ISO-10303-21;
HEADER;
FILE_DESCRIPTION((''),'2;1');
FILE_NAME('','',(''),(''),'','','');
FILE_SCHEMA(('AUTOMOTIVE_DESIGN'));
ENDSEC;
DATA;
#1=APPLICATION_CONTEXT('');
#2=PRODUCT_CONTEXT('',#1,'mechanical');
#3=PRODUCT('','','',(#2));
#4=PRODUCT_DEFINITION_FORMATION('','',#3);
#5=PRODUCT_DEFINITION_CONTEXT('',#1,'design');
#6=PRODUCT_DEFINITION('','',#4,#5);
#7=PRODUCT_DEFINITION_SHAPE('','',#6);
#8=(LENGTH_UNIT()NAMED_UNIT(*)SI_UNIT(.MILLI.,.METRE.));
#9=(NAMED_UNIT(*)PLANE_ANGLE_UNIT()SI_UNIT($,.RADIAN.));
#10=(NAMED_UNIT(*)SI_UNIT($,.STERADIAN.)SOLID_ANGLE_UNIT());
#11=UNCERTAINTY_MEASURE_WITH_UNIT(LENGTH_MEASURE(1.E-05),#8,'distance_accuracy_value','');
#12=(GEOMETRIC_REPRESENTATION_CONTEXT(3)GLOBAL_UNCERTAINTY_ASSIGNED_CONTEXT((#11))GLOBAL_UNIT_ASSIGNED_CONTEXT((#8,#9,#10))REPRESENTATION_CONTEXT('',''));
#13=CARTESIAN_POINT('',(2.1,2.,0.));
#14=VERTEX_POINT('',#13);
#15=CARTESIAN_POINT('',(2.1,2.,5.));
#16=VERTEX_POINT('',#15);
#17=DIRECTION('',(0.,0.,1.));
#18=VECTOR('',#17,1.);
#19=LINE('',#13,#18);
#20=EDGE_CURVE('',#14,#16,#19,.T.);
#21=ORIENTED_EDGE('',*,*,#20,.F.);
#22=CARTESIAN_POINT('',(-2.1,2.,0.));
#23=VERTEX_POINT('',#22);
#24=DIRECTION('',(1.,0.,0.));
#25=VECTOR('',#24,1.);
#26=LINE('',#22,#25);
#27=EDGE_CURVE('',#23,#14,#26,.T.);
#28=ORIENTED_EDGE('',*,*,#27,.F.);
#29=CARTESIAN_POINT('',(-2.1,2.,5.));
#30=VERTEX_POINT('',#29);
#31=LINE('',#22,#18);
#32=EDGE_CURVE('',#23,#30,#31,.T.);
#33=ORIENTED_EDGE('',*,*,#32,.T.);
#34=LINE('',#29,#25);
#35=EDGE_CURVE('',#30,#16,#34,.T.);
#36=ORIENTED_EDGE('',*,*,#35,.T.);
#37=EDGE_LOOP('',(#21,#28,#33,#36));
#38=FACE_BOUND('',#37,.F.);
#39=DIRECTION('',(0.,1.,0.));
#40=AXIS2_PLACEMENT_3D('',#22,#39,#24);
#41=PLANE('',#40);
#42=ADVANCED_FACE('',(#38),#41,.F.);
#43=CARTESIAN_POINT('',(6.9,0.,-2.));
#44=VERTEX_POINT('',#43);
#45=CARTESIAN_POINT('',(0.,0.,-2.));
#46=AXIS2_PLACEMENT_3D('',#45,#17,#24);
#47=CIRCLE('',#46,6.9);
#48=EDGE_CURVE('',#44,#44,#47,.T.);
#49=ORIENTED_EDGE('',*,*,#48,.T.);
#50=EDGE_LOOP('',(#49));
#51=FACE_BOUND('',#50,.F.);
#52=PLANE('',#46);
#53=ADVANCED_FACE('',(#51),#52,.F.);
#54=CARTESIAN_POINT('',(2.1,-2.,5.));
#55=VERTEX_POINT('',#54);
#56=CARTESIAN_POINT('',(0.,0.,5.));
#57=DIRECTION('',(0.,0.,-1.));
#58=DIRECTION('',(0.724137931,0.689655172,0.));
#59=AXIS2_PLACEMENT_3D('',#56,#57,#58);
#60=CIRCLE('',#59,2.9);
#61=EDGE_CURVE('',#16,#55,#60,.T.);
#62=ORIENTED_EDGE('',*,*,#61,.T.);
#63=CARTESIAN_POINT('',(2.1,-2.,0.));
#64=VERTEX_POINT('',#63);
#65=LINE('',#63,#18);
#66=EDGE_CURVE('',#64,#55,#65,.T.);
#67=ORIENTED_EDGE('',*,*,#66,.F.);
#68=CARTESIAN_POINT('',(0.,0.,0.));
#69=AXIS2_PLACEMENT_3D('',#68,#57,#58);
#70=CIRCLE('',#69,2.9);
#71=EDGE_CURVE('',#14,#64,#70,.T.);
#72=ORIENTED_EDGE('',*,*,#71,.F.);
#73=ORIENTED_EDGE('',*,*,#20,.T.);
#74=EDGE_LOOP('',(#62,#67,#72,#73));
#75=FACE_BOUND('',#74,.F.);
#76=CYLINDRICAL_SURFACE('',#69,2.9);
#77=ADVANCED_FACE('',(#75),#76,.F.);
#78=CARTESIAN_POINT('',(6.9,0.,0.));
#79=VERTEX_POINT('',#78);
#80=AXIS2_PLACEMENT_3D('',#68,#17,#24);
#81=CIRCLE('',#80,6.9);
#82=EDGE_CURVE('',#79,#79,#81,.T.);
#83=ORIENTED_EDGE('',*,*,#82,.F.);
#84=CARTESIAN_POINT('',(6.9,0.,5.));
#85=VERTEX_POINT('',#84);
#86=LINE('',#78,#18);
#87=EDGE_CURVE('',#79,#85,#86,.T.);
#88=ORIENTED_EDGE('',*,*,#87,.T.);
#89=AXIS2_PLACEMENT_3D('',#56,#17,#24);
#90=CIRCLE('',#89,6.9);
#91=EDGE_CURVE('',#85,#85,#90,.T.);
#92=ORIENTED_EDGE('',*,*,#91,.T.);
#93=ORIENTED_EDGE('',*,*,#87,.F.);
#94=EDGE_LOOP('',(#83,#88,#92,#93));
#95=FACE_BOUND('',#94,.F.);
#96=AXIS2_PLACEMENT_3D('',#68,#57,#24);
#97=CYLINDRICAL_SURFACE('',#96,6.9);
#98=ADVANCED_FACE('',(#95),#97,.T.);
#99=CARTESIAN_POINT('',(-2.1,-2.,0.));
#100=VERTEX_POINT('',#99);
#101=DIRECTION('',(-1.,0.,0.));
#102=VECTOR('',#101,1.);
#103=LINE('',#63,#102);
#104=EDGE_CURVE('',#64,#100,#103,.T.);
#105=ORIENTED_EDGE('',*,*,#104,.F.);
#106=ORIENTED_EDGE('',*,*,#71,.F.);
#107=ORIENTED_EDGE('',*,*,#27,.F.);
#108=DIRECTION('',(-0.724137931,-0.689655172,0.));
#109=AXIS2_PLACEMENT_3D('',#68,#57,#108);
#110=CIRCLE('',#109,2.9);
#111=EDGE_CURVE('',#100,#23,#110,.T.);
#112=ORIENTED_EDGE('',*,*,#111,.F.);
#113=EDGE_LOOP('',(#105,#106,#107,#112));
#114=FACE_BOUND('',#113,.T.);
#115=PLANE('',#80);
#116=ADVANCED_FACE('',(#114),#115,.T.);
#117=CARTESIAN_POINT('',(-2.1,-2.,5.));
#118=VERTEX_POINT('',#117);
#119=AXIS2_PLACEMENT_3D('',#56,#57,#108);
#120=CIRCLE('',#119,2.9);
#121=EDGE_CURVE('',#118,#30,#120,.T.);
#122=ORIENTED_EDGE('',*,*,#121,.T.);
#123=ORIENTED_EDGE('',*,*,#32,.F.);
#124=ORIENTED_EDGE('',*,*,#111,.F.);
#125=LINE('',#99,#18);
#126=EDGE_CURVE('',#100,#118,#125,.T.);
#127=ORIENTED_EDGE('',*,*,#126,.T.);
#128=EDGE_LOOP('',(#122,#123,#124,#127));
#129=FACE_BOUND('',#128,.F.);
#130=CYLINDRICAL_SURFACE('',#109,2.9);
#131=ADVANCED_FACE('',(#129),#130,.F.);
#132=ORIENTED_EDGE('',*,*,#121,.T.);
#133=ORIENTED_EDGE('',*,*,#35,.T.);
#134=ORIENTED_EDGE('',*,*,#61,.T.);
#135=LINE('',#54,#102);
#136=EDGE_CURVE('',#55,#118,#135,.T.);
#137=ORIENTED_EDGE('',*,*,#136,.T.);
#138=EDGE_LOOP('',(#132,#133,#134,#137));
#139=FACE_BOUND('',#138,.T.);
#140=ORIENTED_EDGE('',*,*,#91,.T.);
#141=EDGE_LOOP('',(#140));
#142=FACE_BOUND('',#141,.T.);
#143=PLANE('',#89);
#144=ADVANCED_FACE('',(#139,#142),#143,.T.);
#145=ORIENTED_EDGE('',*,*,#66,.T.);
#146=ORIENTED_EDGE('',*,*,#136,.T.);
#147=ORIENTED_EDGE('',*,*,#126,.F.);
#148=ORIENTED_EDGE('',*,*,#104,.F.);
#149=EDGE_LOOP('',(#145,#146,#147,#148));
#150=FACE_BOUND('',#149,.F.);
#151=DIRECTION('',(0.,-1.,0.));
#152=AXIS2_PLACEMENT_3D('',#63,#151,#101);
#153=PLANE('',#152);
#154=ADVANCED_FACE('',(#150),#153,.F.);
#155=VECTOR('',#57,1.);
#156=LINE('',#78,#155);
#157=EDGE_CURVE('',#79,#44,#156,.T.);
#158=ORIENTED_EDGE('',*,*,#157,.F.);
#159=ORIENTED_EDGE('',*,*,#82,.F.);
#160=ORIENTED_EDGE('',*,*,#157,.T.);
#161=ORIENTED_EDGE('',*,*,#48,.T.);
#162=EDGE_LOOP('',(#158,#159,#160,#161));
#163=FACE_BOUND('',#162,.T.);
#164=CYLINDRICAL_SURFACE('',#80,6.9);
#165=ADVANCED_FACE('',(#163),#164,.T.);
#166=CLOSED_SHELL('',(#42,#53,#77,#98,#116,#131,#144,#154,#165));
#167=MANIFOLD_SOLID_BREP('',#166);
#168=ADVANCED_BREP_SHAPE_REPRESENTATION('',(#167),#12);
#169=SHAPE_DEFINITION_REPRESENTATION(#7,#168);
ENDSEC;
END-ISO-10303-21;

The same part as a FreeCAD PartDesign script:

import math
import FreeCAD as App
import Part
import Sketcher

V = App.Vector
Q = App.Units.Quantity

doc = App.newDocument("Part")
body = doc.addObject("PartDesign::Body", "Body")

sketch1 = body.newObject("Sketcher::SketchObject", "Sketch")
sketch1.AttachmentSupport = (doc.getObject("XY_Plane"), [""])
sketch1.MapMode = "FlatFace"
sketch1.addGeometry(Part.Circle(V(0, 0, 0), V(0, 0, 1), 7), False)
sketch1.addConstraint(Sketcher.Constraint("Coincident", 0, 3, -1, 1))
sketch1.addConstraint(Sketcher.Constraint("Diameter", 0, Q("13.8 mm")))
pad1 = body.newObject("PartDesign::Pad", "Pad")
pad1.Profile = sketch1
pad1.Length = 2
pad1.Reversed = True

sketch2 = body.newObject("Sketcher::SketchObject", "Sketch001")
sketch2.AttachmentSupport = (doc.getObject("XY_Plane"), [""])
sketch2.MapMode = "FlatFace"
sketch2.addGeometry(Part.Circle(V(0, 0, 0), V(0, 0, 1), 6.9), False)
sketch2.addGeometry(Part.ArcOfCircle(Part.Circle(V(0, 0, 0), V(0, 0, 1), 2.9), math.radians(-44), math.radians(44)), False)
sketch2.addGeometry(Part.LineSegment(V(2.1, -2, 0), V(-2.1, -2, 0)), False)
sketch2.addGeometry(Part.ArcOfCircle(Part.Circle(V(0, 0, 0), V(0, 0, 1), 2.9), math.radians(136), math.radians(224)), False)
sketch2.addGeometry(Part.LineSegment(V(-2.1, 2, 0), V(2.1, 2, 0)), False)
sketch2.addConstraint(Sketcher.Constraint("Coincident", 1, 1, 2, 1))
sketch2.addConstraint(Sketcher.Constraint("Coincident", 2, 2, 3, 2))
sketch2.addConstraint(Sketcher.Constraint("Coincident", 3, 1, 4, 1))
sketch2.addConstraint(Sketcher.Constraint("Coincident", 4, 2, 1, 2))
sketch2.addConstraint(Sketcher.Constraint("Horizontal", 2))
sketch2.addConstraint(Sketcher.Constraint("Horizontal", 4))
sketch2.addConstraint(Sketcher.Constraint("Coincident", 0, 3, -1, 1))
sketch2.addConstraint(Sketcher.Constraint("Coincident", 1, 3, -1, 1))
sketch2.addConstraint(Sketcher.Constraint("Coincident", 3, 3, -1, 1))
sketch2.addConstraint(Sketcher.Constraint("Equal", 1, 3))
sketch2.addConstraint(Sketcher.Constraint("Vertical", 2, 2, 3, 1))
sketch2.addConstraint(Sketcher.Constraint("Diameter", 0, Q("13.8 mm")))
sketch2.addConstraint(Sketcher.Constraint("Radius", 1, Q("2.9 mm")))
sketch2.addConstraint(Sketcher.Constraint("DistanceX", 2, 2, 2, 1, Q("4.2 mm")))
pad2 = body.newObject("PartDesign::Pad", "Pad001")
pad2.Profile = sketch2
pad2.Length = 5

doc.recompute()
